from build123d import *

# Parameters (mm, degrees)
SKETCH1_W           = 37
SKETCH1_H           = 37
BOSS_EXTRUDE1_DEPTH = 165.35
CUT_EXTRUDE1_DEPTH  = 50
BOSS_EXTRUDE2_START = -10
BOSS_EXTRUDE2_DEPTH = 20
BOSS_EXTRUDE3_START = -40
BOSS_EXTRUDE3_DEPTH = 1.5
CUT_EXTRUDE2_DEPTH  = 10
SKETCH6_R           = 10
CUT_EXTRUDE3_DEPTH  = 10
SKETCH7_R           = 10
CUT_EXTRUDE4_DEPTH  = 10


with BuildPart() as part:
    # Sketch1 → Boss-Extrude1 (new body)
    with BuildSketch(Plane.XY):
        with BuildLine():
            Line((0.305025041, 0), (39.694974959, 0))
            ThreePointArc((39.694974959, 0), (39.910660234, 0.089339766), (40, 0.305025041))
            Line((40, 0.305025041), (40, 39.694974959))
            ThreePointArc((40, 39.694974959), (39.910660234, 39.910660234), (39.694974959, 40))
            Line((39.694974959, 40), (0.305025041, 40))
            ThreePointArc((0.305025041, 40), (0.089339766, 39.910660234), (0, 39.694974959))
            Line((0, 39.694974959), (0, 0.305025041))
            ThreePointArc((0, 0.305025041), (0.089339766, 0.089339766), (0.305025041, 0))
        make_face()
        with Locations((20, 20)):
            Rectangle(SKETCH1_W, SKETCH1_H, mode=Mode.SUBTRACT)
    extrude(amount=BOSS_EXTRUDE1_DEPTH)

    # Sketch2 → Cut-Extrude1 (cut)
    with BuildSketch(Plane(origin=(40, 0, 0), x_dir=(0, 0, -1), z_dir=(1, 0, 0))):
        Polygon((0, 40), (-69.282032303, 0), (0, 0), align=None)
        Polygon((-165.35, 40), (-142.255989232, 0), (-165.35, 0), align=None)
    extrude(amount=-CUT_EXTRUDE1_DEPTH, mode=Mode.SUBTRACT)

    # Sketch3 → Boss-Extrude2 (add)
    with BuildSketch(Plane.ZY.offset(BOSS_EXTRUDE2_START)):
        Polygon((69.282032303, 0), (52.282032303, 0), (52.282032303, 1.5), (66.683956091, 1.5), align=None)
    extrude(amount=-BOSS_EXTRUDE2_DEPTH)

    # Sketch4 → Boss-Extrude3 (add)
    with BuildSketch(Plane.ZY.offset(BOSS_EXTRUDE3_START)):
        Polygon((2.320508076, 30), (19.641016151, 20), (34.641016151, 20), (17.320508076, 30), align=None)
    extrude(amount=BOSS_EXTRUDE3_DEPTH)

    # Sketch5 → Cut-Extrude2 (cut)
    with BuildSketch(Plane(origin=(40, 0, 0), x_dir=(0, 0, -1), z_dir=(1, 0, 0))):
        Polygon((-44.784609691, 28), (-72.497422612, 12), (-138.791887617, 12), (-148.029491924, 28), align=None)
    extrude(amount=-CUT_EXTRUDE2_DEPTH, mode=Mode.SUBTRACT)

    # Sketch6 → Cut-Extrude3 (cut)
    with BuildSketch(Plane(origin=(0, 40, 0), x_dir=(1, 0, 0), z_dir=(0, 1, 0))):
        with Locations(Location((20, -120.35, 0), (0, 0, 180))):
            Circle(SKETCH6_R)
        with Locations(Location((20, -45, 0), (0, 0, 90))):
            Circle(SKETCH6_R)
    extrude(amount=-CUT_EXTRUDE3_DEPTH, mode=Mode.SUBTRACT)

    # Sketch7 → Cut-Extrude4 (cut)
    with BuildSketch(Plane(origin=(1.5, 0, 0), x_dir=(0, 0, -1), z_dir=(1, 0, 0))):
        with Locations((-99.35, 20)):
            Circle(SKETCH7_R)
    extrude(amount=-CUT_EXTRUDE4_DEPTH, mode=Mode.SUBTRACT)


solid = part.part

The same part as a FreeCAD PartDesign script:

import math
import FreeCAD as App
import Part
import Sketcher

V = App.Vector
Q = App.Units.Quantity


def add_polygon(sketch, points):
    """Adds a closed chain of lines whose ends are joined by coincident constraints."""
    first, n = sketch.GeometryCount, len(points)
    for a, b in zip(points, points[1:] + points[:1]):
        sketch.addGeometry(Part.LineSegment(App.Vector(*a, 0), App.Vector(*b, 0)), False)
    for i in range(n):
        sketch.addConstraint(Sketcher.Constraint("Coincident", first + i, 2, first + (i + 1) % n, 1))

doc = App.newDocument("Part")
body = doc.addObject("PartDesign::Body", "Body")

sketch1 = body.newObject("Sketcher::SketchObject", "Sketch")
sketch1.AttachmentSupport = (doc.getObject("XY_Plane"), [""])
sketch1.MapMode = "FlatFace"
sketch1.addGeometry(Part.LineSegment(V(0.31, 0, 0), V(39.69, 0, 0)), False)
sketch1.addGeometry(Part.ArcOfCircle(Part.Circle(V(39.69, 0.31, 0), V(0, 0, 1), 0.31), math.radians(-90), math.radians(0)), False)
sketch1.addGeometry(Part.LineSegment(V(40, 0.31, 0), V(40, 39.69, 0)), False)
sketch1.addGeometry(Part.ArcOfCircle(Part.Circle(V(39.69, 39.69, 0), V(0, 0, 1), 0.31), math.radians(0), math.radians(90)), False)
sketch1.addGeometry(Part.LineSegment(V(39.69, 40, 0), V(0.31, 40, 0)), False)
sketch1.addGeometry(Part.ArcOfCircle(Part.Circle(V(0.31, 39.69, 0), V(0, 0, 1), 0.31), math.radians(90), math.radians(180)), False)
sketch1.addGeometry(Part.LineSegment(V(0, 39.69, 0), V(0, 0.31, 0)), False)
sketch1.addGeometry(Part.ArcOfCircle(Part.Circle(V(0.31, 0.31, 0), V(0, 0, 1), 0.31), math.radians(180), math.radians(270)), False)
add_polygon(sketch1, [(38.5, 1.5), (1.5, 1.5), (1.5, 38.5), (38.5, 38.5)])
sketch1.addConstraint(Sketcher.Constraint("Tangent", 0, 2, 1, 1))
sketch1.addConstraint(Sketcher.Constraint("Tangent", 1, 2, 2, 1))
sketch1.addConstraint(Sketcher.Constraint("Tangent", 2, 2, 3, 1))
sketch1.addConstraint(Sketcher.Constraint("Tangent", 3, 2, 4, 1))
sketch1.addConstraint(Sketcher.Constraint("Tangent", 4, 2, 5, 1))
sketch1.addConstraint(Sketcher.Constraint("Tangent", 5, 2, 6, 1))
sketch1.addConstraint(Sketcher.Constraint("Tangent", 6, 2, 7, 1))
sketch1.addConstraint(Sketcher.Constraint("Tangent", 7, 2, 0, 1))
sketch1.addConstraint(Sketcher.Constraint("Horizontal", 0))
sketch1.addConstraint(Sketcher.Constraint("Vertical", 2))
sketch1.addConstraint(Sketcher.Constraint("Horizontal", 4))
sketch1.addConstraint(Sketcher.Constraint("Vertical", 6))
sketch1.addConstraint(Sketcher.Constraint("Horizontal", 8))
sketch1.addConstraint(Sketcher.Constraint("Vertical", 9))
sketch1.addConstraint(Sketcher.Constraint("Horizontal", 10))
sketch1.addConstraint(Sketcher.Constraint("Vertical", 11))
sketch1.addConstraint(Sketcher.Constraint("Equal", 1, 3))
sketch1.addConstraint(Sketcher.Constraint("Equal", 3, 5))
sketch1.addConstraint(Sketcher.Constraint("Equal", 5, 7))
sketch1.addConstraint(Sketcher.Constraint("PointOnObject", 0, 2, -1))
sketch1.addConstraint(Sketcher.Constraint("PointOnObject", 5, 2, -2))
sketch1.addConstraint(Sketcher.Constraint("Equal", 4, 2))
sketch1.addConstraint(Sketcher.Constraint("Equal", 10, 9))
sketch1.addConstraint(Sketcher.Constraint("DistanceX", 8, 2, 8, 1, 37.0))
sketch1.addConstraint(Sketcher.Constraint("DistanceX", -1, 1, 1, 2, 40.0))
sketch1.addConstraint(Sketcher.Constraint("DistanceX", -1, 1, 8, 2, 1.5))
sketch1.addConstraint(Sketcher.Constraint("DistanceY", -1, 1, 8, 2, 1.5))
sketch1.addConstraint(Sketcher.Constraint("Radius", 1, 0.305025))
pad1 = body.newObject("PartDesign::Pad", "Pad")
pad1.Profile = sketch1
pad1.Length = 165.35

sketch2 = body.newObject("Sketcher::SketchObject", "Sketch001")
sketch2.AttachmentSupport = (doc.getObject("YZ_Plane"), [""])
sketch2.MapMode = "FlatFace"
sketch2.AttachmentOffset = App.Placement(V(0, 0, 40), App.Rotation())
add_polygon(sketch2, [(40, 0), (0, 69), (0, 0)])
add_polygon(sketch2, [(0, 142), (40, 165), (0, 165)])
sketch2.addConstraint(Sketcher.Constraint("Vertical", 1))
sketch2.addConstraint(Sketcher.Constraint("Horizontal", 2))
sketch2.addConstraint(Sketcher.Constraint("Horizontal", 4))
sketch2.addConstraint(Sketcher.Constraint("Vertical", 5))
sketch2.addConstraint(Sketcher.Constraint("Coincident", 1, 2, -1, 1))
sketch2.addConstraint(Sketcher.Constraint("PointOnObject", 4, 2, -2))
sketch2.addConstraint(Sketcher.Constraint("Perpendicular", 0, 3))
sketch2.addConstraint(Sketcher.Constraint("Vertical", 2, 2, 3, 2))
sketch2.addConstraint(Sketcher.Constraint("DistanceX", 2, 1, 2, 2, 40.0))
sketch2.addConstraint(Sketcher.Constraint("Angle", 0, Q("120 deg")))
sketch2.addConstraint(Sketcher.Constraint("DistanceY", -1, 1, 3, 2, 165.35))
pocket1 = body.newObject("PartDesign::Pocket", "Pocket")
pocket1.Profile = sketch2
pocket1.Length = 50

sketch3 = body.newObject("Sketcher::SketchObject", "Sketch002")
sketch3.AttachmentSupport = (doc.getObject("YZ_Plane"), [""])
sketch3.MapMode = "FlatFace"
sketch3.AttachmentOffset = App.Placement(V(0, 0, 10), App.Rotation())
add_polygon(sketch3, [(0, 52.3), (0, 69.3), (1.5, 66.7), (1.5, 52.3)])
sketch3.addConstraint(Sketcher.Constraint("Vertical", 0))
sketch3.addConstraint(Sketcher.Constraint("Vertical", 2))
sketch3.addConstraint(Sketcher.Constraint("Horizontal", 3))
sketch3.addConstraint(Sketcher.Constraint("PointOnObject", 0, 2, -2))
sketch3.addConstraint(Sketcher.Constraint("DistanceY", 0, 1, 0, 2, 17.0))
sketch3.addConstraint(Sketcher.Constraint("Angle", 1, Q("-60 deg")))
sketch3.addConstraint(Sketcher.Constraint("Distance", 1, 3.0))
sketch3.addConstraint(Sketcher.Constraint("DistanceY", -1, 1, 0, 2, 69.282032))
pad2 = body.newObject("PartDesign::Pad", "Pad001")
pad2.Profile = sketch3
pad2.Length = 20

sketch4 = body.newObject("Sketcher::SketchObject", "Sketch003")
sketch4.AttachmentSupport = (doc.getObject("YZ_Plane"), [""])
sketch4.MapMode = "FlatFace"
sketch4.AttachmentOffset = App.Placement(V(0, 0, 40), App.Rotation())
add_polygon(sketch4, [(30, 2), (20, 20), (20, 35), (30, 17)])
sketch4.addConstraint(Sketcher.Constraint("Vertical", 1))
sketch4.addConstraint(Sketcher.Constraint("Vertical", 3))
sketch4.addConstraint(Sketcher.Constraint("Parallel", 0, 2))
sketch4.addConstraint(Sketcher.Constraint("DistanceY", 1, 1, 1, 2, 15.0))
sketch4.addConstraint(Sketcher.Constraint("Angle", 0, Q("120 deg")))
sketch4.addConstraint(Sketcher.Constraint("Distance", 0, 20.0))
sketch4.addConstraint(Sketcher.Constraint("DistanceX", -1, 1, 0, 2, 20.0))
sketch4.addConstraint(Sketcher.Constraint("DistanceY", -1, 1, 2, 2, 17.320508))
pad3 = body.newObject("PartDesign::Pad", "Pad002")
pad3.Profile = sketch4
pad3.Length = 1.5
pad3.Reversed = True

sketch5 = body.newObject("Sketcher::SketchObject", "Sketch004")
sketch5.AttachmentSupport = (doc.getObject("YZ_Plane"), [""])
sketch5.MapMode = "FlatFace"
sketch5.AttachmentOffset = App.Placement(V(0, 0, 40), App.Rotation())
add_polygon(sketch5, [(12, 72), (28, 45), (28, 148), (12, 139)])
sketch5.addConstraint(Sketcher.Constraint("Vertical", 1))
sketch5.addConstraint(Sketcher.Constraint("Vertical", 3))
sketch5.addConstraint(Sketcher.Constraint("Perpendicular", 0, 2))
sketch5.addConstraint(Sketcher.Constraint("Angle", 0, Q("-60 deg")))
sketch5.addConstraint(Sketcher.Constraint("Distance", 0, 32.0))
sketch5.addConstraint(Sketcher.Constraint("DistanceX", -1, 1, 0, 2, 28.0))
sketch5.addConstraint(Sketcher.Constraint("DistanceY", 1, 1, 1, 2, 103.244882))
sketch5.addConstraint(Sketcher.Constraint("DistanceY", -1, 1, 0, 2, 44.78461))
pocket2 = body.newObject("PartDesign::Pocket", "Pocket001")
pocket2.Profile = sketch5
pocket2.Length = 10

sketch6 = body.newObject("Sketcher::SketchObject", "Sketch005")
sketch6.AttachmentSupport = (doc.getObject("XZ_Plane"), [""])
sketch6.MapMode = "FlatFace"
sketch6.AttachmentOffset = App.Placement(V(0, 0, -40), App.Rotation())
sketch6.addGeometry(Part.Circle(V(20, 120, 0), V(0, 0, 1), 10), False)
sketch6.addGeometry(Part.Circle(V(20, 45, 0), V(0, 0, 1), 10), False)
sketch6.addConstraint(Sketcher.Constraint("Equal", 0, 1))
sketch6.addConstraint(Sketcher.Constraint("Vertical", 0, 3, 1, 3))
sketch6.addConstraint(Sketcher.Constraint("Diameter", 0, 20.0))
sketch6.addConstraint(Sketcher.Constraint("DistanceX", -1, 1, 0, 3, 20.0))
sketch6.addConstraint(Sketcher.Constraint("DistanceY", -1, 1, 1, 3, 45.0))
sketch6.addConstraint(Sketcher.Constraint("DistanceY", -1, 1, 0, 3, 120.35))
pocket3 = body.newObject("PartDesign::Pocket", "Pocket002")
pocket3.Profile = sketch6
pocket3.Length = 10
pocket3.Reversed = True

sketch7 = body.newObject("Sketcher::SketchObject", "Sketch006")
sketch7.AttachmentSupport = (doc.getObject("YZ_Plane"), [""])
sketch7.MapMode = "FlatFace"
sketch7.AttachmentOffset = App.Placement(V(0, 0, 1.5), App.Rotation())
sketch7.addGeometry(Part.Circle(V(20, 99, 0), V(0, 0, 1), 10), False)
sketch7.addConstraint(Sketcher.Constraint("Diameter", 0, 20.0))
sketch7.addConstraint(Sketcher.Constraint("DistanceX", -1, 1, 0, 3, 20.0))
sketch7.addConstraint(Sketcher.Constraint("DistanceY", -1, 1, 0, 3, 99.35))
pocket4 = body.newObject("PartDesign::Pocket", "Pocket003")
pocket4.Profile = sketch7
pocket4.Length = 10

doc.recompute()
